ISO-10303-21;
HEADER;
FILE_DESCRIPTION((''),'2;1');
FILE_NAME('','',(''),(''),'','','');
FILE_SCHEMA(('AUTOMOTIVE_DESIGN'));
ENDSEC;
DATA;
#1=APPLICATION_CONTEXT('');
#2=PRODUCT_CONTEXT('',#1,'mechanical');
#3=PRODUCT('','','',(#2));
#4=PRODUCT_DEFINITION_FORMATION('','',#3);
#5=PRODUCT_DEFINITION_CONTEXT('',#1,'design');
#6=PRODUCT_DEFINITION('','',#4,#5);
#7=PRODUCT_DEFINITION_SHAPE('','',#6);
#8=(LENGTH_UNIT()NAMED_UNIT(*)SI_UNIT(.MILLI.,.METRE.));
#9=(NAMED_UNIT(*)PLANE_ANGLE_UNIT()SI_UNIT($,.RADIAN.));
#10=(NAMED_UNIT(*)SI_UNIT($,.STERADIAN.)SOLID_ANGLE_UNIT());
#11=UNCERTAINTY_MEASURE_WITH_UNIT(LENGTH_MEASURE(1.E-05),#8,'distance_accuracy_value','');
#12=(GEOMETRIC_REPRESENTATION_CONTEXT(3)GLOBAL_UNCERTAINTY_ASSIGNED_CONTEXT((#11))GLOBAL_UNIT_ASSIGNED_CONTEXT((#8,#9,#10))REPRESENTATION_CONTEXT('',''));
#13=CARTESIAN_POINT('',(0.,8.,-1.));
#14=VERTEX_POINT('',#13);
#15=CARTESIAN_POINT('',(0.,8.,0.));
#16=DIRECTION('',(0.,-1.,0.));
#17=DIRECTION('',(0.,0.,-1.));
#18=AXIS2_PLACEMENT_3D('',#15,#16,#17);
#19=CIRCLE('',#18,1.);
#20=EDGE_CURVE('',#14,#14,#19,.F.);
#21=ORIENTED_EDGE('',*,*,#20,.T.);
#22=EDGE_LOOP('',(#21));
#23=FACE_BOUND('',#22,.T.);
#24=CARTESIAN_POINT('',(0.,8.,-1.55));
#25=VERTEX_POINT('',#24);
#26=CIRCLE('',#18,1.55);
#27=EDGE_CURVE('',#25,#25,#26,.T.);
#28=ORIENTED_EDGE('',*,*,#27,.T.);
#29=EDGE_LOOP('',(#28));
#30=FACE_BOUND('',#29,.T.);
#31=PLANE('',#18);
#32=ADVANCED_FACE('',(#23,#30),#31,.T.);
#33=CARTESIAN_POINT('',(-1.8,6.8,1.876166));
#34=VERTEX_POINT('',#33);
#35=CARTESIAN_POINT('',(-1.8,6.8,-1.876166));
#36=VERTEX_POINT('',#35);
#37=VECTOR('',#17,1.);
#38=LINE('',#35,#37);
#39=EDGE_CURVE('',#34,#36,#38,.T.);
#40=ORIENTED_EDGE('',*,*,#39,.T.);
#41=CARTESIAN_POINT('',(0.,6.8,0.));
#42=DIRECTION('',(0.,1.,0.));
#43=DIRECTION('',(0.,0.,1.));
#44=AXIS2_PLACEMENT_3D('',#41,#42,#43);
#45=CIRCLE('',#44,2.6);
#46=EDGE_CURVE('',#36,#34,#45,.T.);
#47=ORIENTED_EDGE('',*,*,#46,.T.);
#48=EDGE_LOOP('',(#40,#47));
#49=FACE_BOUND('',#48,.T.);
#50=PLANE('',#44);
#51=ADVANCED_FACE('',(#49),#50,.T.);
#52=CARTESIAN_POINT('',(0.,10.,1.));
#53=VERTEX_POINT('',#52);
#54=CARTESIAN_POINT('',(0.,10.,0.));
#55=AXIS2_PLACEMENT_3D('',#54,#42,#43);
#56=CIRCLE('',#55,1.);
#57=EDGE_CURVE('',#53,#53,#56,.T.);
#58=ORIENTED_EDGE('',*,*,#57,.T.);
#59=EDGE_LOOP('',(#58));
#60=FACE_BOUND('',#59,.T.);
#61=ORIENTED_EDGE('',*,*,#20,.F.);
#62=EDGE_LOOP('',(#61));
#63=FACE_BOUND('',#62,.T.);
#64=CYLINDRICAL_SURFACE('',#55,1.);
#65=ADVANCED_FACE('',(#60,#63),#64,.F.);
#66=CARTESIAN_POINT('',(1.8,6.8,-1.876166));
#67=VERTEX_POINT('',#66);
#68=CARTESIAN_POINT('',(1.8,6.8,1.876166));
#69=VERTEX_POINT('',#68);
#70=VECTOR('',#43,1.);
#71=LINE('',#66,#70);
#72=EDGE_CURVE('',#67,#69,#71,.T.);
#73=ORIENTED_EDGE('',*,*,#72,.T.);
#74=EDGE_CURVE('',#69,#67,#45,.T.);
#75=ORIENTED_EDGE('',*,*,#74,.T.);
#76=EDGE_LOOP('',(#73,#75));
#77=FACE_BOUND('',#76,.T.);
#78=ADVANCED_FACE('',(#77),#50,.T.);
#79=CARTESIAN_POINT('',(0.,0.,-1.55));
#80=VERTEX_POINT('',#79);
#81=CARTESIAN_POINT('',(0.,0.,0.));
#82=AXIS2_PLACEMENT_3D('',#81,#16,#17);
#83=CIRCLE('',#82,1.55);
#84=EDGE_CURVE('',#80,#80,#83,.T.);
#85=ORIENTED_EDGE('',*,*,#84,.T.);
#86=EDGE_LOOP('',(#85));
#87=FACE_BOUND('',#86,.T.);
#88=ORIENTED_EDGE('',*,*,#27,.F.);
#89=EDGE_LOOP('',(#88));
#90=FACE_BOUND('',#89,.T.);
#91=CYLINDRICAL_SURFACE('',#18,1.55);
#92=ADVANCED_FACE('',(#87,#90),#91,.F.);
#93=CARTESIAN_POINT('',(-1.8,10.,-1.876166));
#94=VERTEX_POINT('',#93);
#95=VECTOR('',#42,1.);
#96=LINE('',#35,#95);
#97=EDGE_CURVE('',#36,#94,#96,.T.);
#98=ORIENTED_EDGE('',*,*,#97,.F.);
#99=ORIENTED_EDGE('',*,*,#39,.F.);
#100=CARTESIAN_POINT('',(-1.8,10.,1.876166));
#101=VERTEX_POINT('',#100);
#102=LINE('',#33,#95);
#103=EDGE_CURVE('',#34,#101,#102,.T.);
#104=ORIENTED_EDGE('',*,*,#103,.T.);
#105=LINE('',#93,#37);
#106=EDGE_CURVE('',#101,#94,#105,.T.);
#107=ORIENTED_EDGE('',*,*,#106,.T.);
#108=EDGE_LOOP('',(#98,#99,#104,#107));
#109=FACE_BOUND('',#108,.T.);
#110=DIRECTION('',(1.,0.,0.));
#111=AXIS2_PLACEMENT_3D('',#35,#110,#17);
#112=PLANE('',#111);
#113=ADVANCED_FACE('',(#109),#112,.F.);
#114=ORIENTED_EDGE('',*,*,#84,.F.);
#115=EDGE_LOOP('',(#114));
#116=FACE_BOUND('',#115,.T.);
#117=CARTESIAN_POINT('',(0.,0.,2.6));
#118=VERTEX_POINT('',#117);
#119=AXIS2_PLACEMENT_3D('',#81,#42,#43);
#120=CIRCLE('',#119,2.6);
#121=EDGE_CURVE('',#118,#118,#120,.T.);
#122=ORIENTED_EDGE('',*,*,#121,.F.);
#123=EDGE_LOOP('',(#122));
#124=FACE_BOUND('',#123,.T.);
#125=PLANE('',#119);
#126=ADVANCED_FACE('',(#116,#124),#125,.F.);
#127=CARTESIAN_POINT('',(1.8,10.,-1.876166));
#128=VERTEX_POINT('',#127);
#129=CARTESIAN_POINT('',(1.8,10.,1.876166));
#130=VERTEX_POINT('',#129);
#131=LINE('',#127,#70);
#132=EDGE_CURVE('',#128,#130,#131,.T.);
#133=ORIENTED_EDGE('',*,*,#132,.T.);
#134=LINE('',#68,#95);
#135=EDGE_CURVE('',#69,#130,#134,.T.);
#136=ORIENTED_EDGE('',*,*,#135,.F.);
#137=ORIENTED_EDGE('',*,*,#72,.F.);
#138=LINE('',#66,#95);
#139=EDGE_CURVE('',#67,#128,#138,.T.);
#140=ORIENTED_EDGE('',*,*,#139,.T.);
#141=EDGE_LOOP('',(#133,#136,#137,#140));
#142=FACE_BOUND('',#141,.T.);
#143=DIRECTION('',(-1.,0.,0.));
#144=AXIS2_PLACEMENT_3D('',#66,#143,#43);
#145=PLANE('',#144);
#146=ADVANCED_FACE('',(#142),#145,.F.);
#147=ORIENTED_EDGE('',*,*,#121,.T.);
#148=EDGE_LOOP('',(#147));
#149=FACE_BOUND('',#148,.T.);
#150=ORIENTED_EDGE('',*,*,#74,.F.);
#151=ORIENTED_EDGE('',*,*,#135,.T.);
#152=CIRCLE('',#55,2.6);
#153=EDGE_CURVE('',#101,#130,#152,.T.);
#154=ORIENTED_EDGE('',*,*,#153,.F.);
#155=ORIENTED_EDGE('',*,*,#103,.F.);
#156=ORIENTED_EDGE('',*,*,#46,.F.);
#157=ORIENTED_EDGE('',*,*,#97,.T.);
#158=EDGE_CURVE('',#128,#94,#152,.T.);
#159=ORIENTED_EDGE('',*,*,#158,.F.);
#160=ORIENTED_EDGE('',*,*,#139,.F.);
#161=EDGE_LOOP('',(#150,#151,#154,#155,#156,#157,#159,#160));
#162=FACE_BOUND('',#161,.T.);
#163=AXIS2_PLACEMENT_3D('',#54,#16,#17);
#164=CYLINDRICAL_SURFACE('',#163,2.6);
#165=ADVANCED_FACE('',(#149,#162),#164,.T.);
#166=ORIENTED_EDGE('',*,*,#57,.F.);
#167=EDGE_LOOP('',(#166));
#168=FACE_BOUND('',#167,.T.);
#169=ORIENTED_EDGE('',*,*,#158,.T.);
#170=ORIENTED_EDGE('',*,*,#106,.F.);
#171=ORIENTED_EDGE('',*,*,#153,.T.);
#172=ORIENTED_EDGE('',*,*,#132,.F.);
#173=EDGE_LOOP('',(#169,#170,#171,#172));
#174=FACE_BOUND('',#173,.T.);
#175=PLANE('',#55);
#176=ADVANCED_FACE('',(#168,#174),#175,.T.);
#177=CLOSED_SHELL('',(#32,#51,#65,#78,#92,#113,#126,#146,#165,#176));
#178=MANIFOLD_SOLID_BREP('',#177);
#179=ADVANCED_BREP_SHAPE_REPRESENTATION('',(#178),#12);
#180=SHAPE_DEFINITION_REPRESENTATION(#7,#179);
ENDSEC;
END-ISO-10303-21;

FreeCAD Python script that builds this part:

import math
import FreeCAD as App
import Part
import Sketcher
from FreeCAD import Vector

doc = App.newDocument("Part")
body = doc.addObject("PartDesign::Body", "Body")

# Sketch on XZ plane
sketch1 = doc.addObject("Sketcher::SketchObject", "Sketch")
body.addObject(sketch1)
sketch1.AttachmentSupport = (doc.XZ_Plane, [""])
sketch1.MapMode = "FlatFace"
sketch1.addGeometry(Part.Circle(Vector(0, 0, 0), Vector(0, 0, 1), 2.6), False)
sketch1.addConstraint([
    Sketcher.Constraint("Coincident", 0, 3, -1, 1),
    Sketcher.Constraint("Diameter", 0, 5.2),
])
pad1 = doc.addObject("PartDesign::Pad", "Pad")
body.addObject(pad1)
pad1.Profile = sketch1
pad1.Length = 10
pad1.Reversed = True

# Sketch on XZ plane
sketch2 = doc.addObject("Sketcher::SketchObject", "Sketch001")
body.addObject(sketch2)
sketch2.AttachmentSupport = (doc.XZ_Plane, [""])
sketch2.MapMode = "FlatFace"
sketch2.AttachmentOffset = App.Placement(Vector(0, 0, -6.8), App.Rotation())
sketch2.addGeometry([
    Part.LineSegment(Vector(-1.8, 1.9, 0), Vector(-1.8, -1.9, 0)),
    Part.ArcOfCircle(Part.Circle(Vector(0, 0, 0), Vector(0, 0, 1), 2.6), math.radians(134), math.radians(226)),
    Part.LineSegment(Vector(1.8, -1.9, 0), Vector(1.8, 1.9, 0)),
    Part.ArcOfCircle(Part.Circle(Vector(0, 0, 0), Vector(0, 0, 1), 2.6), math.radians(-46), math.radians(46)),
], False)
sketch2.addConstraint([
    Sketcher.Constraint("Coincident", 0, 1, 1, 1),
    Sketcher.Constraint("Coincident", 1, 2, 0, 2),
    Sketcher.Constraint("Coincident", 2, 1, 3, 1),
    Sketcher.Constraint("Coincident", 3, 2, 2, 2),
    Sketcher.Constraint("Vertical", 0),
    Sketcher.Constraint("Vertical", 2),
    Sketcher.Constraint("Coincident", 1, 3, -1, 1),
    Sketcher.Constraint("Coincident", 3, 3, -1, 1),
    Sketcher.Constraint("Equal", 1, 3),
    Sketcher.Constraint("Horizontal", 1, 2, 2, 1),
    Sketcher.Constraint("Radius", 1, 2.6),
    Sketcher.Constraint("DistanceX", 0, 1, -1, 1, 1.8),
])
pocket1 = doc.addObject("PartDesign::Pocket", "Pocket")
body.addObject(pocket1)
pocket1.Profile = sketch2
pocket1.Length = 3.2

# Sketch on XZ plane
sketch3 = doc.addObject("Sketcher::SketchObject", "Sketch002")
body.addObject(sketch3)
sketch3.AttachmentSupport = (doc.XZ_Plane, [""])
sketch3.MapMode = "FlatFace"
sketch3.AttachmentOffset = App.Placement(Vector(0, 0, -10), App.Rotation())
sketch3.addGeometry(Part.Circle(Vector(0, 0, 0), Vector(0, 0, 1), 1), False)
sketch3.addConstraint([
    Sketcher.Constraint("Coincident", 0, 3, -1, 1),
    Sketcher.Constraint("Diameter", 0, 2.0),
])
doc.recompute()
hole = doc.addObject("PartDesign::Hole", "Hole")
body.addObject(hole)
hole.Profile = sketch3
hole.ThreadType = "None"
hole.Diameter = 2
hole.DepthType = "Dimension"
hole.Depth = 3.399139
hole.DrillPoint = "Angled"
hole.DrillPointAngle = 118
hole.Reversed = True

# Sketch on XZ plane
sketch4 = doc.addObject("Sketcher::SketchObject", "Sketch003")
body.addObject(sketch4)
sketch4.AttachmentSupport = (doc.XZ_Plane, [""])
sketch4.MapMode = "FlatFace"
sketch4.addGeometry(Part.Circle(Vector(0, 0, 0), Vector(0, 0, 1), 1.6), False)
sketch4.addConstraint([
    Sketcher.Constraint("Coincident", 0, 3, -1, 1),
    Sketcher.Constraint("Diameter", 0, 3.1),
])
pocket2 = doc.addObject("PartDesign::Pocket", "Pocket001")
body.addObject(pocket2)
pocket2.Profile = sketch4
pocket2.Length = 8

doc.recompute()
